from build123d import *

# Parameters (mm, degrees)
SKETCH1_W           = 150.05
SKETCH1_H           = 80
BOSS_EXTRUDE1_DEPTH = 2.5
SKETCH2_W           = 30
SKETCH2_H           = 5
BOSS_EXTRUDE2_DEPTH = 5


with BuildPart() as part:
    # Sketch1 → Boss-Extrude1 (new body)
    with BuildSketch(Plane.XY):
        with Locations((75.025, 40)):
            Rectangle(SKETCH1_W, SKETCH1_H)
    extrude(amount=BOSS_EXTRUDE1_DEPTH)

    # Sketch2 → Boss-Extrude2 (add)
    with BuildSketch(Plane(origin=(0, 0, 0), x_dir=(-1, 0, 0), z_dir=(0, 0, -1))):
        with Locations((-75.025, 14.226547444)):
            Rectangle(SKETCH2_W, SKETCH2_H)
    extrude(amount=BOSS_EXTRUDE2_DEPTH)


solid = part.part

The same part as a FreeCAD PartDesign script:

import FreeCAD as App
import Part
import Sketcher
from FreeCAD import Vector
Q = App.Units.Quantity


def add_polygon(sketch, points):
    """Adds a closed chain of lines whose ends are joined by coincident constraints."""
    first, n = sketch.GeometryCount, len(points)
    for a, b in zip(points, points[1:] + points[:1]):
        sketch.addGeometry(Part.LineSegment(App.Vector(*a, 0), App.Vector(*b, 0)), False)
    for i in range(n):
        sketch.addConstraint(Sketcher.Constraint("Coincident", first + i, 2, first + (i + 1) % n, 1))

doc = App.newDocument("Part")
body = doc.addObject("PartDesign::Body", "Body")

sketch1 = body.newObject("Sketcher::SketchObject", "Sketch")
sketch1.AttachmentSupport = (doc.getObject("XY_Plane"), [""])
sketch1.MapMode = "FlatFace"
add_polygon(sketch1, [(0, 80), (0, 0), (150.05, 0), (150.05, 80)])
sketch1.addConstraint([
    Sketcher.Constraint("Vertical", 0),
    Sketcher.Constraint("Horizontal", 1),
    Sketcher.Constraint("Vertical", 2),
    Sketcher.Constraint("Horizontal", 3),
    Sketcher.Constraint("Coincident", 0, 2, -1, 1),
    Sketcher.Constraint("DistanceY", 0, 2, 0, 1, Q("80 mm")),
    Sketcher.Constraint("DistanceX", 1, 1, 1, 2, Q("150.05 mm")),
])
pad1 = body.newObject("PartDesign::Pad", "Pad")
pad1.Profile = sketch1
pad1.Length = 2.5

sketch2 = body.newObject("Sketcher::SketchObject", "Sketch001")
sketch2.AttachmentSupport = (doc.getObject("XY_Plane"), [""])
sketch2.MapMode = "FlatFace"
add_polygon(sketch2, [(90.025, 16.726547), (90.025, 11.726547), (60.025, 11.726547), (60.025, 16.726547)])
sketch2.addConstraint([
    Sketcher.Constraint("Vertical", 0),
    Sketcher.Constraint("Horizontal", 1),
    Sketcher.Constraint("Vertical", 2),
    Sketcher.Constraint("Horizontal", 3),
    Sketcher.Constraint("DistanceX", 1, 2, 1, 1, Q("30 mm")),
    Sketcher.Constraint("DistanceY", 0, 2, 0, 1, Q("5 mm")),
    Sketcher.Constraint("DistanceX", -1, 1, 0, 2, Q("90.025 mm")),
    Sketcher.Constraint("DistanceY", -1, 1, 0, 2, Q("11.726547 mm")),
])
pad2 = body.newObject("PartDesign::Pad", "Pad001")
pad2.Profile = sketch2
pad2.Length = 5
pad2.Reversed = True

doc.recompute()
